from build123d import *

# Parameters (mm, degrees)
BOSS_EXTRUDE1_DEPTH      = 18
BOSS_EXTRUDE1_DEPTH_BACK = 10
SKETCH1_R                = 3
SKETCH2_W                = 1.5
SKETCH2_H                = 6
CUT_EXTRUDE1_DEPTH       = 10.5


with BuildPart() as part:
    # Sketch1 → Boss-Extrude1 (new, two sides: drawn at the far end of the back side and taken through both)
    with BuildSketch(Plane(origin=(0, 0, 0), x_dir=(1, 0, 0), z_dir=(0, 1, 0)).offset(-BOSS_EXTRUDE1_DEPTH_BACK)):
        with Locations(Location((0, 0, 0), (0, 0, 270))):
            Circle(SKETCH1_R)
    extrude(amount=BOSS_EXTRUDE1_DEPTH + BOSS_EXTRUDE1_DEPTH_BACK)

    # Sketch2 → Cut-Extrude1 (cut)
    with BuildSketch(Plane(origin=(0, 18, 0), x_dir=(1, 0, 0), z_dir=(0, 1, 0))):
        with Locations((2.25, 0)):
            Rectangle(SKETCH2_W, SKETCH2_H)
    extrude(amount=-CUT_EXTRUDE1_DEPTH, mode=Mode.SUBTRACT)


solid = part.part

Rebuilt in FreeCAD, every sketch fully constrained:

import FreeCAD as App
import Part
import Sketcher
from FreeCAD import Vector
Q = App.Units.Quantity

doc = App.newDocument("Part")
body = doc.addObject("PartDesign::Body", "Body")

sketch1 = doc.addObject("Sketcher::SketchObject", "Sketch")
body.addObject(sketch1)
sketch1.AttachmentSupport = (doc.XZ_Plane, [""])
sketch1.MapMode = "FlatFace"
sketch1.addGeometry(Part.Circle(Vector(0, 0, 0), Vector(0, 0, 1), 3), False)
sketch1.addConstraint([
    Sketcher.Constraint("Coincident", 0, 3, -1, 1),
    Sketcher.Constraint("Diameter", 0, Q("6 mm")),
])
pad1 = doc.addObject("PartDesign::Pad", "Pad")
body.addObject(pad1)
pad1.Profile = sketch1
pad1.Type = "TwoLengths"
pad1.Length = 18
pad1.Length2 = 10
pad1.Reversed = True

sketch2 = doc.addObject("Sketcher::SketchObject", "Sketch001")
body.addObject(sketch2)
sketch2.AttachmentSupport = (doc.XZ_Plane, [""])
sketch2.MapMode = "FlatFace"
sketch2.AttachmentOffset = App.Placement(Vector(0, 0, -18), App.Rotation())
sketch2.addGeometry([
    Part.LineSegment(Vector(1.5, -3, 0), Vector(1.5, 3, 0)),
    Part.LineSegment(Vector(1.5, 3, 0), Vector(3, 3, 0)),
    Part.LineSegment(Vector(3, 3, 0), Vector(3, -3, 0)),
    Part.LineSegment(Vector(3, -3, 0), Vector(1.5, -3, 0)),
], False)
sketch2.addConstraint([
    Sketcher.Constraint("Coincident", 0, 2, 1, 1),
    Sketcher.Constraint("Coincident", 1, 2, 2, 1),
    Sketcher.Constraint("Coincident", 2, 2, 3, 1),
    Sketcher.Constraint("Coincident", 3, 2, 0, 1),
    Sketcher.Constraint("Vertical", 0),
    Sketcher.Constraint("Horizontal", 1),
    Sketcher.Constraint("Vertical", 2),
    Sketcher.Constraint("Horizontal", 3),
    Sketcher.Constraint("DistanceY", 0, 1, 0, 2, Q("6 mm")),
    Sketcher.Constraint("DistanceX", 1, 1, 1, 2, Q("1.5 mm")),
    Sketcher.Constraint("DistanceY", -1, 1, 0, 2, Q("3 mm")),
    Sketcher.Constraint("DistanceX", -1, 1, 1, 2, Q("3 mm")),
])
pocket1 = doc.addObject("PartDesign::Pocket", "Pocket")
body.addObject(pocket1)
pocket1.Profile = sketch2
pocket1.Length = 10.5
pocket1.Reversed = True

doc.recompute()
